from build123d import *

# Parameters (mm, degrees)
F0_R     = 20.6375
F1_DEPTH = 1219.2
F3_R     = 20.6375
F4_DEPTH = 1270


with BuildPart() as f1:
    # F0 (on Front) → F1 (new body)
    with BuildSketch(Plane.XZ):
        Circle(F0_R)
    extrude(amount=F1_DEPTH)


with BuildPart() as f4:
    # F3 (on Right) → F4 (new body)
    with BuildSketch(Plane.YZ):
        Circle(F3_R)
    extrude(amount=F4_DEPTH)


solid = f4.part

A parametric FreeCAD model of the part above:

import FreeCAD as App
import Part
import Sketcher
Q = App.Units.Quantity

doc = App.newDocument("Part")
params = doc.addObject("Spreadsheet::Sheet", "Params")
for row, (alias, value) in enumerate([
    ("sketch1_diameter", "1.625 in"),
    ("pad1_length", "48 in"),
    ("sketch2_diameter", "1.625 in"),
    ("pad2_length", "50 in"),
], start=1):
    params.set(f"A{row}", alias)
    params.set(f"B{row}", "=" + value)
    params.setAlias(f"B{row}", alias)

body = doc.addObject("PartDesign::Body", "Body")

# Sketch on XZ plane
sketch1 = body.newObject("Sketcher::SketchObject", "Sketch")
sketch1.AttachmentSupport = (doc.getObject("XZ_Plane"), [""])
sketch1.MapMode = "FlatFace"
sketch1.addGeometry(Part.Circle(App.Vector(0, 0, 0), App.Vector(0, 0, 1), 21), False)
sketch1.addConstraint(Sketcher.Constraint("Coincident", 0, 3, -1, 1))
sketch1.addConstraint(Sketcher.Constraint("Diameter", 0, Q("1.625 in")))
sketch1.setExpression("Constraints[1]", "Params.sketch1_diameter")
pad1 = body.newObject("PartDesign::Pad", "Pad")
pad1.Profile = sketch1
pad1.setExpression("Length", "Params.pad1_length")
body2 = doc.addObject("PartDesign::Body", "Body001")

# Sketch on YZ plane
sketch2 = body2.newObject("Sketcher::SketchObject", "Sketch001")
sketch2.AttachmentSupport = (doc.getObject("YZ_Plane001"), [""])
sketch2.MapMode = "FlatFace"
sketch2.addGeometry(Part.Circle(App.Vector(0, 0, 0), App.Vector(0, 0, 1), 21), False)
sketch2.addConstraint(Sketcher.Constraint("Coincident", 0, 3, -1, 1))
sketch2.addConstraint(Sketcher.Constraint("Diameter", 0, Q("1.625 in")))
sketch2.setExpression("Constraints[1]", "Params.sketch2_diameter")
pad2 = body2.newObject("PartDesign::Pad", "Pad001")
pad2.Profile = sketch2
pad2.setExpression("Length", "Params.pad2_length")
body.Visibility = False

doc.recompute()
